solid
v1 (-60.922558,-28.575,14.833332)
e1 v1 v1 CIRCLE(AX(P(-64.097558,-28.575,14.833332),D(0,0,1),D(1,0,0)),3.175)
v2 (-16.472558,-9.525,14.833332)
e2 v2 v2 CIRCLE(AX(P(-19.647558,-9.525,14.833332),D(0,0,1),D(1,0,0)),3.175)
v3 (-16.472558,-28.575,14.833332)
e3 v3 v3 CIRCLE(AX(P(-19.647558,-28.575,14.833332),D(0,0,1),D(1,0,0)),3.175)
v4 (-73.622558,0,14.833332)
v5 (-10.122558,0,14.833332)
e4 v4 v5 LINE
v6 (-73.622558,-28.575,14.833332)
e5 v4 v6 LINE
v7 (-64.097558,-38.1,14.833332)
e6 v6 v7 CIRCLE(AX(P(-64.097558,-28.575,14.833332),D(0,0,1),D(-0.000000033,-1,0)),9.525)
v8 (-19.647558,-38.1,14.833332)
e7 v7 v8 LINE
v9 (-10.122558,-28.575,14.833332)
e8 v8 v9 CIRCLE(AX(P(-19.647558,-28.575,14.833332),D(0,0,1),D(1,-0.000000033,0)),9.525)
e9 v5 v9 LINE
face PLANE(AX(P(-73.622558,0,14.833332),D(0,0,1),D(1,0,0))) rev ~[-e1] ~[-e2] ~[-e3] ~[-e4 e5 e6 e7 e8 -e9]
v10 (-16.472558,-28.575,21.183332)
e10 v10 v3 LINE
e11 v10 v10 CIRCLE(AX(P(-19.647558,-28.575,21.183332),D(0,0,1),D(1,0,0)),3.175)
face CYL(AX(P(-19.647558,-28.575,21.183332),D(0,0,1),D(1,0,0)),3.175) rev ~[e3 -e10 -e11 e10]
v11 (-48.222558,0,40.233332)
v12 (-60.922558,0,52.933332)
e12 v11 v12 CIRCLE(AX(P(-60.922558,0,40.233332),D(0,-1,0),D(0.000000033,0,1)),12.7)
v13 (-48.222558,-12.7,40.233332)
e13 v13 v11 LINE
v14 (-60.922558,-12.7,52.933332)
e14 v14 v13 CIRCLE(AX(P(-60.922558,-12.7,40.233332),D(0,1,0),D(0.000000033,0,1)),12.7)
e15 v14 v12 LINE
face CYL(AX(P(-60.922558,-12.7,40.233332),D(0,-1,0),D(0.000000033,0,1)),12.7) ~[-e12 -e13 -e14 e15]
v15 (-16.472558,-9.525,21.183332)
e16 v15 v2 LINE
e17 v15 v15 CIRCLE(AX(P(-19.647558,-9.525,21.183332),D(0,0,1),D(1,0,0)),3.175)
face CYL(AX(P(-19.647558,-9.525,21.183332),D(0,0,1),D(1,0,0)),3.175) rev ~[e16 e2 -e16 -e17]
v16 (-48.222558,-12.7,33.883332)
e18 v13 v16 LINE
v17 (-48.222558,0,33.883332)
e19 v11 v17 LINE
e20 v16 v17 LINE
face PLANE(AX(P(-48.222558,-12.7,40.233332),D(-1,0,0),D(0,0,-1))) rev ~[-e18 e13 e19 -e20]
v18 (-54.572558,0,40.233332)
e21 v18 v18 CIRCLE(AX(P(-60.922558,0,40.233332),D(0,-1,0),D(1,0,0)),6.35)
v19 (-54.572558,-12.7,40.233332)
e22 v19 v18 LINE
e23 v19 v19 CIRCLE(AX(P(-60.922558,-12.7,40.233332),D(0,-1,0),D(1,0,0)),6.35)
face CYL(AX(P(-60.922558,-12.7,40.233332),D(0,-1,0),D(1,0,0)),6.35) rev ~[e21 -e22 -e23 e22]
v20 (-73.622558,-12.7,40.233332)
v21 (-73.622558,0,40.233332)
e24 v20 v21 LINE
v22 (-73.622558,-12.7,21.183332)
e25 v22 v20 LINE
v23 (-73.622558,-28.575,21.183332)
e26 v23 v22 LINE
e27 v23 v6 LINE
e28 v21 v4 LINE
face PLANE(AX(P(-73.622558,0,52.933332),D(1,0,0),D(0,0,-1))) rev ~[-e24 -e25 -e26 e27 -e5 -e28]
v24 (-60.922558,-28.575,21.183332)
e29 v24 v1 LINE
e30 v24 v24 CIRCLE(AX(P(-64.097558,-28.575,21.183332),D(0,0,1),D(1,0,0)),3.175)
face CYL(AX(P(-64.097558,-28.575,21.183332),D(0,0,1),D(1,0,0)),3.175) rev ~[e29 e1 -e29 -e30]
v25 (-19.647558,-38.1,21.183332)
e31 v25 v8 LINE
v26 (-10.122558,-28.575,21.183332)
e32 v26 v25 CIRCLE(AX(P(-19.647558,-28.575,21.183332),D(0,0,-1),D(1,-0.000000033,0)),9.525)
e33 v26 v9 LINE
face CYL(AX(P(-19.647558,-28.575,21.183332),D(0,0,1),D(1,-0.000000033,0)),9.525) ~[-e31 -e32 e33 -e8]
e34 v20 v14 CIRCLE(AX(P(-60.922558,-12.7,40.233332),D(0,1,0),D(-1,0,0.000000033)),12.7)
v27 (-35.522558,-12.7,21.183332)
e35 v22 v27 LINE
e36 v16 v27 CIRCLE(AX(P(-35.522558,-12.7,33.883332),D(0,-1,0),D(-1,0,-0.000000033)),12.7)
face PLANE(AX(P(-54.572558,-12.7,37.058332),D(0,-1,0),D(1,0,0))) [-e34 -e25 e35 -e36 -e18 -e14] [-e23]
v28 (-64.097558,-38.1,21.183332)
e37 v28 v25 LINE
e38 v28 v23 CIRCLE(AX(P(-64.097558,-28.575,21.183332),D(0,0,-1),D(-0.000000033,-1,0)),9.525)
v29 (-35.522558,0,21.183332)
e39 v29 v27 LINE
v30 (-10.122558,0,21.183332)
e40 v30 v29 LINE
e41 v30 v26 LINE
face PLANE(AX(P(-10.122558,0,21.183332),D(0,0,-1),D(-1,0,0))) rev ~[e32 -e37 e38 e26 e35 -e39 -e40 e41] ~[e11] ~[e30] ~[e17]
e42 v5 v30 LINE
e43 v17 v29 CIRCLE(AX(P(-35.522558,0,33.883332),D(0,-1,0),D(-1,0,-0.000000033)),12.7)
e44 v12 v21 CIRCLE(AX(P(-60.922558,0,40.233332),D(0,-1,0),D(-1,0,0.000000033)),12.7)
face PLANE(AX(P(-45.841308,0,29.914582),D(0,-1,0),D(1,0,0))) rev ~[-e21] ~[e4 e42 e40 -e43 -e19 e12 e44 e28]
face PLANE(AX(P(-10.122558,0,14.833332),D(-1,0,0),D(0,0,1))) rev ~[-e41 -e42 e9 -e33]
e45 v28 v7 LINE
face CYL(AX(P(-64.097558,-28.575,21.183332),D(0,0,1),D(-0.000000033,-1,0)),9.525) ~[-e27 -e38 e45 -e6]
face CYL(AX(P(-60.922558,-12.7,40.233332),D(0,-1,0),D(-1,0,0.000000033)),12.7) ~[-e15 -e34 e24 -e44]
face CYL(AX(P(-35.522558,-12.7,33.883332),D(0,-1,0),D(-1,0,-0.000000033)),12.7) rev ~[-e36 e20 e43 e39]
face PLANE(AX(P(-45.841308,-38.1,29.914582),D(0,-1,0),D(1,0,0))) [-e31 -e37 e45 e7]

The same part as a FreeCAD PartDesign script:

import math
import FreeCAD as App
import Part
import Sketcher
from FreeCAD import Vector
Q = App.Units.Quantity


def add_polygon(sketch, points):
    """Adds a closed chain of lines whose ends are joined by coincident constraints."""
    first, n = sketch.GeometryCount, len(points)
    for a, b in zip(points, points[1:] + points[:1]):
        sketch.addGeometry(Part.LineSegment(App.Vector(*a, 0), App.Vector(*b, 0)), False)
    for i in range(n):
        sketch.addConstraint(Sketcher.Constraint("Coincident", first + i, 2, first + (i + 1) % n, 1))

doc = App.newDocument("Part")
body = doc.addObject("PartDesign::Body", "Body")

sketch1 = body.newObject("Sketcher::SketchObject", "Sketch")
sketch1.AttachmentSupport = (doc.getObject("XZ_Plane"), [""])
sketch1.MapMode = "FlatFace"
add_polygon(sketch1, [(-36, 53), (-74, 53), (-74, 15), (-10, 15), (-10, 21), (-36, 21)])
sketch1.addConstraint([
    Sketcher.Constraint("Horizontal", 0),
    Sketcher.Constraint("Vertical", 1),
    Sketcher.Constraint("Horizontal", 2),
    Sketcher.Constraint("Vertical", 3),
    Sketcher.Constraint("Horizontal", 4),
    Sketcher.Constraint("Vertical", 5),
    Sketcher.Constraint("Equal", 0, 1),
    Sketcher.Constraint("DistanceX", 4, 2, 4, 1, Q("1 in")),
    Sketcher.Constraint("DistanceX", 0, 2, 0, 1, Q("1.5 in")),
    Sketcher.Constraint("DistanceY", 3, 1, 3, 2, Q("0.25 in")),
    Sketcher.Constraint("DistanceX", 0, 2, -1, 1, Q("73.622558 mm")),
    Sketcher.Constraint("DistanceY", -1, 1, 3, 2, Q("21.183332 mm")),
])
pad1 = body.newObject("PartDesign::Pad", "Pad")
pad1.Profile = sketch1
pad1.Length = Q("1.5 in")

sketch2 = body.newObject("Sketcher::SketchObject", "Sketch001")
sketch2.AttachmentSupport = (doc.getObject("XZ_Plane"), [""])
sketch2.MapMode = "FlatFace"
sketch2.AttachmentOffset = App.Placement(Vector(0, 0, 1.5 * 25.4), App.Rotation())
add_polygon(sketch2, [(-74, 53), (-74, 21), (-36, 21), (-36, 53)])
sketch2.addConstraint([
    Sketcher.Constraint("Vertical", 0),
    Sketcher.Constraint("Horizontal", 1),
    Sketcher.Constraint("Vertical", 2),
    Sketcher.Constraint("Horizontal", 3),
    Sketcher.Constraint("DistanceX", 1, 1, 1, 2, Q("1.5 in")),
    Sketcher.Constraint("DistanceY", 0, 2, 0, 1, Q("1.25 in")),
    Sketcher.Constraint("DistanceX", 0, 2, -1, 1, Q("73.622558 mm")),
    Sketcher.Constraint("DistanceY", -1, 1, 0, 2, Q("21.183332 mm")),
])
pocket1 = body.newObject("PartDesign::Pocket", "Pocket")
pocket1.Profile = sketch2
pocket1.Length = Q("1 in")

sketch3 = body.newObject("Sketcher::SketchObject", "Sketch002")
sketch3.AttachmentSupport = (doc.getObject("XY_Plane"), [""])
sketch3.MapMode = "FlatFace"
sketch3.AttachmentOffset = App.Placement(Vector(0, 0, 21.183332), App.Rotation())
sketch3.addGeometry([
    Part.Circle(Vector(-19.6, -28.6, 0), Vector(0, 0, 1), 3.2),
    Part.Circle(Vector(-64.1, -28.6, 0), Vector(0, 0, 1), 3.2),
    Part.LineSegment(Vector(-73.6, -38.1, 0), Vector(-64.1, -38.1, 0)),
    Part.ArcOfCircle(Part.Circle(Vector(-64.1, -28.6, 0), Vector(0, 0, 1), 9.5), math.radians(-180), math.radians(-90)),
    Part.LineSegment(Vector(-73.6, -28.6, 0), Vector(-73.6, -38.1, 0)),
    Part.ArcOfCircle(Part.Circle(Vector(-19.6, -28.6, 0), Vector(0, 0, 1), 9.5), math.radians(-90), math.radians(0)),
    Part.LineSegment(Vector(-19.6, -38.1, 0), Vector(-10.1, -38.1, 0)),
    Part.LineSegment(Vector(-10.1, -38.1, 0), Vector(-10.1, -28.6, 0)),
], False)
sketch3.addConstraint([
    Sketcher.Constraint("Tangent", 2, 2, 3, 2),
    Sketcher.Constraint("Tangent", 3, 1, 4, 1),
    Sketcher.Constraint("Coincident", 4, 2, 2, 1),
    Sketcher.Constraint("Tangent", 5, 1, 6, 1),
    Sketcher.Constraint("Coincident", 6, 2, 7, 1),
    Sketcher.Constraint("Tangent", 7, 2, 5, 2),
    Sketcher.Constraint("Horizontal", 2),
    Sketcher.Constraint("Vertical", 4),
    Sketcher.Constraint("Horizontal", 6),
    Sketcher.Constraint("Vertical", 7),
    Sketcher.Constraint("Coincident", 3, 3, 1, 3),
    Sketcher.Constraint("Coincident", 5, 3, 0, 3),
    Sketcher.Constraint("Equal", 0, 1),
    Sketcher.Constraint("Equal", 3, 5),
    Sketcher.Constraint("Horizontal", 0, 3, 1, 3),
    Sketcher.Constraint("Diameter", 0, Q("0.25 in")),
    Sketcher.Constraint("Radius", 3, Q("0.375 in")),
    Sketcher.Constraint("DistanceY", 2, 2, -1, 1, Q("1.5 in")),
    Sketcher.Constraint("DistanceX", 1, 3, 0, 3, Q("1.75 in")),
    Sketcher.Constraint("DistanceX", 0, 3, -1, 1, Q("19.647558 mm")),
])
pocket2 = body.newObject("PartDesign::Pocket", "Pocket001")
pocket2.Profile = sketch3
pocket2.Length = Q("1 in")

sketch4 = body.newObject("Sketcher::SketchObject", "Sketch003")
sketch4.AttachmentSupport = (doc.getObject("XY_Plane"), [""])
sketch4.MapMode = "FlatFace"
sketch4.AttachmentOffset = App.Placement(Vector(0, 0, 21.183332), App.Rotation())
sketch4.addGeometry(Part.Circle(Vector(-19.6, -9.5, 0), Vector(0, 0, 1), 3.2), False)
sketch4.addConstraint([
    Sketcher.Constraint("Diameter", 0, Q("0.25 in")),
    Sketcher.Constraint("DistanceY", 0, 3, -1, 1, Q("0.375 in")),
    Sketcher.Constraint("DistanceX", 0, 3, -1, 1, Q("19.647558 mm")),
])
pocket3 = body.newObject("PartDesign::Pocket", "Pocket002")
pocket3.Profile = sketch4
pocket3.Length = Q("1 in")

sketch5 = body.newObject("Sketcher::SketchObject", "Sketch004")
sketch5.AttachmentSupport = (doc.getObject("XZ_Plane"), [""])
sketch5.MapMode = "FlatFace"
sketch5.AttachmentOffset = App.Placement(Vector(0, 0, 0.5 * 25.4), App.Rotation())
sketch5.addGeometry(Part.Circle(Vector(-61, 40, 0), Vector(0, 0, 1), 6), False)
sketch5.addConstraint([
    Sketcher.Constraint("Diameter", 0, Q("0.5 in")),
    Sketcher.Constraint("DistanceX", 0, 3, -1, 1, Q("60.922558 mm")),
    Sketcher.Constraint("DistanceY", -1, 1, 0, 3, Q("40.233332 mm")),
])
pocket4 = body.newObject("PartDesign::Pocket", "Pocket003")
pocket4.Profile = sketch5
pocket4.Length = Q("1 in")

sketch6 = body.newObject("Sketcher::SketchObject", "Sketch005")
sketch6.AttachmentSupport = (doc.getObject("XZ_Plane"), [""])
sketch6.MapMode = "FlatFace"
sketch6.AttachmentOffset = App.Placement(Vector(0, 0, 0.5 * 25.4), App.Rotation())
sketch6.addGeometry([
    Part.ArcOfCircle(Part.Circle(Vector(-61, 40, 0), Vector(0, 0, 1), 13), math.radians(0), math.radians(90)),
    Part.LineSegment(Vector(-48, 40, 0), Vector(-48, 34, 0)),
    Part.ArcOfCircle(Part.Circle(Vector(-36, 34, 0), Vector(0, 0, 1), 13), math.radians(-180), math.radians(-90)),
    Part.LineSegment(Vector(-36, 21, 0), Vector(-36, 53, 0)),
    Part.LineSegment(Vector(-36, 53, 0), Vector(-61, 53, 0)),
    Part.ArcOfCircle(Part.Circle(Vector(-61, 40, 0), Vector(0, 0, 1), 13), math.radians(90), math.radians(180)),
    Part.LineSegment(Vector(-61, 53, 0), Vector(-74, 53, 0)),
    Part.LineSegment(Vector(-74, 53, 0), Vector(-74, 40, 0)),
], False)
sketch6.addConstraint([
    Sketcher.Constraint("Tangent", 0, 1, 1, 1),
    Sketcher.Constraint("Tangent", 1, 2, 2, 1),
    Sketcher.Constraint("Coincident", 2, 2, 3, 1),
    Sketcher.Constraint("Coincident", 3, 2, 4, 1),
    Sketcher.Constraint("Tangent", 4, 2, 0, 2),
    Sketcher.Constraint("Tangent", 5, 1, 6, 1),
    Sketcher.Constraint("Coincident", 6, 2, 7, 1),
    Sketcher.Constraint("Tangent", 7, 2, 5, 2),
    Sketcher.Constraint("Vertical", 1),
    Sketcher.Constraint("Vertical", 3),
    Sketcher.Constraint("Horizontal", 4),
    Sketcher.Constraint("Horizontal", 6),
    Sketcher.Constraint("Vertical", 7),
    Sketcher.Constraint("Coincident", 5, 3, 0, 3),
    Sketcher.Constraint("Equal", 0, 2),
    Sketcher.Constraint("Equal", 2, 5),
    Sketcher.Constraint("Radius", 0, Q("0.5 in")),
    Sketcher.Constraint("DistanceX", 4, 2, 4, 1, Q("1 in")),
    Sketcher.Constraint("DistanceY", 1, 2, 1, 1, Q("0.25 in")),
    Sketcher.Constraint("DistanceX", 0, 3, -1, 1, Q("60.922558 mm")),
    Sketcher.Constraint("DistanceY", -1, 1, 0, 3, Q("40.233332 mm")),
])
pocket5 = body.newObject("PartDesign::Pocket", "Pocket004")
pocket5.Profile = sketch6
pocket5.Length = Q("1 in")

doc.recompute()
